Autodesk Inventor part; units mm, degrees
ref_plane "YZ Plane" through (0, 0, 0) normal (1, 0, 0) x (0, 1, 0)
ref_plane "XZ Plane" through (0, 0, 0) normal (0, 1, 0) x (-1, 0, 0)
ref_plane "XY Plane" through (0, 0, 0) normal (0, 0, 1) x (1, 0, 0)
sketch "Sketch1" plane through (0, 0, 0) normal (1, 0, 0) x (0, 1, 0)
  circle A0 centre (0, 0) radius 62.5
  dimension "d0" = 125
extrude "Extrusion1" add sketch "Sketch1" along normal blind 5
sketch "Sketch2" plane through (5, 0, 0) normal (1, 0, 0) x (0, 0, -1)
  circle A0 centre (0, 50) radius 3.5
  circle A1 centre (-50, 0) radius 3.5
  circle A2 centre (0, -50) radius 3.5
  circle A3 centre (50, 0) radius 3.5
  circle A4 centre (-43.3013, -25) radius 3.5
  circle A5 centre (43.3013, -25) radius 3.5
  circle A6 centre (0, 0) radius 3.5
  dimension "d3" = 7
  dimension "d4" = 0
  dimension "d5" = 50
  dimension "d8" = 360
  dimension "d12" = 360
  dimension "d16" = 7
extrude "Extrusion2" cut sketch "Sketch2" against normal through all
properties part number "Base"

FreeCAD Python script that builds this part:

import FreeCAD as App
import Part
import Sketcher
Q = App.Units.Quantity

doc = App.newDocument("Part")
body = doc.addObject("PartDesign::Body", "Body")

# Sketch on YZ plane
sketch1 = body.newObject("Sketcher::SketchObject", "Sketch")
sketch1.AttachmentSupport = (doc.getObject("YZ_Plane"), [""])
sketch1.MapMode = "FlatFace"
sketch1.addGeometry(Part.Circle(App.Vector(0, 0, 0), App.Vector(0, 0, 1), 62), False)
sketch1.addConstraint([
    Sketcher.Constraint("Coincident", 0, 3, -1, 1),
    Sketcher.Constraint("Diameter", 0, Q("125 mm")),
])
pad1 = body.newObject("PartDesign::Pad", "Pad")
pad1.Profile = sketch1
pad1.Length = 5

# Sketch on YZ plane
sketch2 = body.newObject("Sketcher::SketchObject", "Sketch001")
sketch2.AttachmentSupport = (doc.getObject("YZ_Plane"), [""])
sketch2.MapMode = "FlatFace"
sketch2.AttachmentOffset = App.Placement(App.Vector(0, 0, 5), App.Rotation())
sketch2.addGeometry([
    Part.Circle(App.Vector(50, 0, 0), App.Vector(0, 0, 1), 3.5),  # 0
    Part.Circle(App.Vector(0, 50, 0), App.Vector(0, 0, 1), 3.5),  # 1
    Part.Circle(App.Vector(-50, 0, 0), App.Vector(0, 0, 1), 3.5),  # 2
    Part.Circle(App.Vector(0, -50, 0), App.Vector(0, 0, 1), 3.5),  # 3
    Part.Circle(App.Vector(-25, 43.3, 0), App.Vector(0, 0, 1), 3.5),  # 4
    Part.Circle(App.Vector(-25, -43.3, 0), App.Vector(0, 0, 1), 3.5),  # 5
    Part.Circle(App.Vector(0, 0, 0), App.Vector(0, 0, 1), 3.5),  # 6
], False)
sketch2.addConstraint([
    Sketcher.Constraint("Coincident", 6, 3, -1, 1),
    Sketcher.Constraint("Equal", 0, 1),
    Sketcher.Constraint("Equal", 1, 2),
    Sketcher.Constraint("Equal", 2, 3),
    Sketcher.Constraint("Equal", 3, 4),
    Sketcher.Constraint("Equal", 4, 5),
    Sketcher.Constraint("Equal", 5, 6),
    Sketcher.Constraint("Symmetric", 0, 3, 2, 3, -1, 1),
    Sketcher.Constraint("Symmetric", 1, 3, 3, 3, -1, 1),
    Sketcher.Constraint("Symmetric", 4, 3, 5, 3, -1),
    Sketcher.Constraint("PointOnObject", 0, 3, -1),
    Sketcher.Constraint("PointOnObject", 1, 3, -2),
    Sketcher.Constraint("Diameter", 0, Q("7 mm")),
    Sketcher.Constraint("DistanceX", -1, 1, 0, 3, Q("50 mm")),
    Sketcher.Constraint("DistanceY", -1, 1, 1, 3, Q("50 mm")),
    Sketcher.Constraint("DistanceX", 4, 3, -1, 1, Q("25 mm")),
    Sketcher.Constraint("DistanceY", -1, 1, 4, 3, Q("43.3013 mm")),
])
pocket1 = body.newObject("PartDesign::Pocket", "Pocket")
pocket1.Profile = sketch2
pocket1.Type = "ThroughAll"

doc.recompute()
